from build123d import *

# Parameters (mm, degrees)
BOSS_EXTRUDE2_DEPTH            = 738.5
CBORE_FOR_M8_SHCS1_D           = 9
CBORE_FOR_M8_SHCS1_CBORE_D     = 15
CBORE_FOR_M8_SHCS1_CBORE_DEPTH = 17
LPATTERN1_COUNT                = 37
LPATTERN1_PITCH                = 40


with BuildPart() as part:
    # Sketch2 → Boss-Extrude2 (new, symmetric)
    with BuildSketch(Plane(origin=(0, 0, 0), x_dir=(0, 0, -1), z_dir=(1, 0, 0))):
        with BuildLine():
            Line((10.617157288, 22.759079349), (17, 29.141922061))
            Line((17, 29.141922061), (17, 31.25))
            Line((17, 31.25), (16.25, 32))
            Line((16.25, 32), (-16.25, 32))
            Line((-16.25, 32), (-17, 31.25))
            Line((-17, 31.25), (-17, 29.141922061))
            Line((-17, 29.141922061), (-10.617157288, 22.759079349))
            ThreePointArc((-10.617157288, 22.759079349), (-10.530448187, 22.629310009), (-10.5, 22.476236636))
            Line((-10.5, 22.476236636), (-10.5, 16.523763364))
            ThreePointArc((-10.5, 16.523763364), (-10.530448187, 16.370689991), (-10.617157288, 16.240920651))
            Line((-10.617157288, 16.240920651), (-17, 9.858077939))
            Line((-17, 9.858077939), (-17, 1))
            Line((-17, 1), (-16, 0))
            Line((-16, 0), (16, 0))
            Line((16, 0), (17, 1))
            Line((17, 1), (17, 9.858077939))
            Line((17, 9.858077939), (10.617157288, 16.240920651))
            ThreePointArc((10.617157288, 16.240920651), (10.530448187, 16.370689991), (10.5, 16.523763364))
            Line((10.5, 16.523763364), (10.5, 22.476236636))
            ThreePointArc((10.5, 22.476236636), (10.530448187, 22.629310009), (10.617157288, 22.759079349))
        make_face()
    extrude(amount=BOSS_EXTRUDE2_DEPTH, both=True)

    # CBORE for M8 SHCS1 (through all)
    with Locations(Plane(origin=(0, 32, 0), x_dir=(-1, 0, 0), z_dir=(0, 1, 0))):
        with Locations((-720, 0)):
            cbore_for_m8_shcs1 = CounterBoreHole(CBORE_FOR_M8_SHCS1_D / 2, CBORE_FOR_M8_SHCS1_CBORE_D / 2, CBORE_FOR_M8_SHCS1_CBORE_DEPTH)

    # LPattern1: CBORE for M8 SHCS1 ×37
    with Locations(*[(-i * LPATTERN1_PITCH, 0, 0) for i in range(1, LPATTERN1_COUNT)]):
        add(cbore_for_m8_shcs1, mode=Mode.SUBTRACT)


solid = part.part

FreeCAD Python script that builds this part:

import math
import FreeCAD as App
import Part
import Sketcher

V = App.Vector
Q = App.Units.Quantity

doc = App.newDocument("Part")
body = doc.addObject("PartDesign::Body", "Body")

# Sketch on YZ plane
sketch1 = body.newObject("Sketcher::SketchObject", "Sketch")
sketch1.AttachmentSupport = (doc.getObject("YZ_Plane"), [""])
sketch1.MapMode = "FlatFace"
sketch1.addGeometry([
    Part.LineSegment(V(22.76, -10.62, 0), V(29.14, -17, 0)),  # 0
    Part.LineSegment(V(29.14, -17, 0), V(31.25, -17, 0)),  # 1
    Part.LineSegment(V(31.25, -17, 0), V(32, -16.25, 0)),  # 2
    Part.LineSegment(V(32, -16.25, 0), V(32, 16.25, 0)),  # 3
    Part.LineSegment(V(32, 16.25, 0), V(31.25, 17, 0)),  # 4
    Part.LineSegment(V(31.25, 17, 0), V(29.14, 17, 0)),  # 5
    Part.LineSegment(V(29.14, 17, 0), V(22.76, 10.62, 0)),  # 6
    Part.ArcOfCircle(Part.Circle(V(22.48, 10.9, 0), V(0, 0, 1), 0.4), math.radians(-90), math.radians(-45)),  # 7
    Part.LineSegment(V(22.48, 10.5, 0), V(16.52, 10.5, 0)),  # 8
    Part.ArcOfCircle(Part.Circle(V(16.52, 10.9, 0), V(0, 0, 1), 0.4), math.radians(-135), math.radians(-90)),  # 9
    Part.LineSegment(V(16.24, 10.62, 0), V(9.86, 17, 0)),  # 10
    Part.LineSegment(V(9.86, 17, 0), V(1, 17, 0)),  # 11
    Part.LineSegment(V(1, 17, 0), V(0, 16, 0)),  # 12
    Part.LineSegment(V(0, 16, 0), V(0, -16, 0)),  # 13
    Part.LineSegment(V(0, -16, 0), V(1, -17, 0)),  # 14
    Part.LineSegment(V(1, -17, 0), V(9.86, -17, 0)),  # 15
    Part.LineSegment(V(9.86, -17, 0), V(16.24, -10.62, 0)),  # 16
    Part.ArcOfCircle(Part.Circle(V(16.52, -10.9, 0), V(0, 0, 1), 0.4), math.radians(90), math.radians(135)),  # 17
    Part.LineSegment(V(16.52, -10.5, 0), V(22.48, -10.5, 0)),  # 18
    Part.ArcOfCircle(Part.Circle(V(22.48, -10.9, 0), V(0, 0, 1), 0.4), math.radians(45), math.radians(90)),  # 19
], False)
sketch1.addConstraint([
    Sketcher.Constraint("Coincident", 0, 2, 1, 1),
    Sketcher.Constraint("Coincident", 1, 2, 2, 1),
    Sketcher.Constraint("Coincident", 2, 2, 3, 1),
    Sketcher.Constraint("Coincident", 3, 2, 4, 1),
    Sketcher.Constraint("Coincident", 4, 2, 5, 1),
    Sketcher.Constraint("Coincident", 5, 2, 6, 1),
    Sketcher.Constraint("Tangent", 6, 2, 7, 2),
    Sketcher.Constraint("Tangent", 7, 1, 8, 1),
    Sketcher.Constraint("Tangent", 8, 2, 9, 2),
    Sketcher.Constraint("Tangent", 9, 1, 10, 1),
    Sketcher.Constraint("Coincident", 10, 2, 11, 1),
    Sketcher.Constraint("Coincident", 11, 2, 12, 1),
    Sketcher.Constraint("Coincident", 12, 2, 13, 1),
    Sketcher.Constraint("Coincident", 13, 2, 14, 1),
    Sketcher.Constraint("Coincident", 14, 2, 15, 1),
    Sketcher.Constraint("Coincident", 15, 2, 16, 1),
    Sketcher.Constraint("Tangent", 16, 2, 17, 2),
    Sketcher.Constraint("Tangent", 17, 1, 18, 1),
    Sketcher.Constraint("Tangent", 18, 2, 19, 2),
    Sketcher.Constraint("Tangent", 19, 1, 0, 1),
    Sketcher.Constraint("Horizontal", 1),
    Sketcher.Constraint("Vertical", 3),
    Sketcher.Constraint("Horizontal", 5),
    Sketcher.Constraint("Horizontal", 8),
    Sketcher.Constraint("Horizontal", 11),
    Sketcher.Constraint("Vertical", 13),
    Sketcher.Constraint("Horizontal", 15),
    Sketcher.Constraint("Horizontal", 18),
    Sketcher.Constraint("Equal", 7, 9),
    Sketcher.Constraint("Equal", 9, 17),
    Sketcher.Constraint("Equal", 17, 19),
    Sketcher.Constraint("Symmetric", 12, 2, 13, 2, -1, 1),
    Sketcher.Constraint("Symmetric", 9, 3, 17, 3, -1),
    Sketcher.Constraint("Symmetric", 1, 2, 4, 2, -1),
    Sketcher.Constraint("Symmetric", 11, 2, 14, 2, -1),
    Sketcher.Constraint("Symmetric", 6, 2, 19, 1, -1),
    Sketcher.Constraint("Perpendicular", 0, 2),
    Sketcher.Constraint("Perpendicular", 2, 4),
    Sketcher.Constraint("Perpendicular", 4, 6),
    Sketcher.Constraint("Perpendicular", 6, 10),
    Sketcher.Constraint("Perpendicular", 10, 12),
    Sketcher.Constraint("Perpendicular", 14, 16),
    Sketcher.Constraint("Horizontal", 5, 2, 10, 2),
    Sketcher.Constraint("Radius", 7, Q("0.4 mm")),
    Sketcher.Constraint("DistanceY", 13, 2, 13, 1, Q("32 mm")),
    Sketcher.Constraint("DistanceY", 3, 1, 3, 2, Q("32.5 mm")),
    Sketcher.Constraint("DistanceY", 0, 2, -1, 1, Q("17 mm")),
    Sketcher.Constraint("DistanceX", -1, 1, 2, 2, Q("32 mm")),
    Sketcher.Constraint("DistanceY", -1, 1, 7, 3, Q("10.9 mm")),
    Sketcher.Constraint("DistanceX", 16, 2, 0, 2, Q("12.901001 mm")),
    Sketcher.Constraint("DistanceX", 1, 1, 1, 2, Q("2.108078 mm")),
])
pad1 = body.newObject("PartDesign::Pad", "Pad")
pad1.Profile = sketch1
pad1.Length = 1477
pad1.Midplane = True

# Sketch on XZ plane
sketch2 = body.newObject("Sketcher::SketchObject", "Sketch001")
sketch2.AttachmentSupport = (doc.getObject("XZ_Plane"), [""])
sketch2.MapMode = "FlatFace"
sketch2.AttachmentOffset = App.Placement(V(0, 0, -32), App.Rotation())
sketch2.addGeometry(Part.Circle(V(720, 0, 0), V(0, 0, 1), 4.5), False)
sketch2.addConstraint([
    Sketcher.Constraint("PointOnObject", 0, 3, -1),
    Sketcher.Constraint("Diameter", 0, Q("9 mm")),
    Sketcher.Constraint("DistanceX", -1, 1, 0, 3, Q("720 mm")),
])
doc.recompute()
hole = body.newObject("PartDesign::Hole", "Hole")
hole.Profile = sketch2
hole.ThreadType = "None"
hole.Diameter = 9
hole.DepthType = "ThroughAll"
hole.HoleCutType = "Counterbore"
hole.HoleCutDiameter = 15
hole.HoleCutDepth = 17
hole.Reversed = True
doc.recompute()

linearpattern = body.newObject("PartDesign::LinearPattern", "LinearPattern")
linearpattern.Originals = [hole]
linearpattern.Direction = (doc.getObject("X_Axis"), [""])
linearpattern.Mode = "offset"
linearpattern.Offset = 40
linearpattern.Occurrences = 37
linearpattern.Reversed = True
body.Tip = linearpattern

doc.recompute()
